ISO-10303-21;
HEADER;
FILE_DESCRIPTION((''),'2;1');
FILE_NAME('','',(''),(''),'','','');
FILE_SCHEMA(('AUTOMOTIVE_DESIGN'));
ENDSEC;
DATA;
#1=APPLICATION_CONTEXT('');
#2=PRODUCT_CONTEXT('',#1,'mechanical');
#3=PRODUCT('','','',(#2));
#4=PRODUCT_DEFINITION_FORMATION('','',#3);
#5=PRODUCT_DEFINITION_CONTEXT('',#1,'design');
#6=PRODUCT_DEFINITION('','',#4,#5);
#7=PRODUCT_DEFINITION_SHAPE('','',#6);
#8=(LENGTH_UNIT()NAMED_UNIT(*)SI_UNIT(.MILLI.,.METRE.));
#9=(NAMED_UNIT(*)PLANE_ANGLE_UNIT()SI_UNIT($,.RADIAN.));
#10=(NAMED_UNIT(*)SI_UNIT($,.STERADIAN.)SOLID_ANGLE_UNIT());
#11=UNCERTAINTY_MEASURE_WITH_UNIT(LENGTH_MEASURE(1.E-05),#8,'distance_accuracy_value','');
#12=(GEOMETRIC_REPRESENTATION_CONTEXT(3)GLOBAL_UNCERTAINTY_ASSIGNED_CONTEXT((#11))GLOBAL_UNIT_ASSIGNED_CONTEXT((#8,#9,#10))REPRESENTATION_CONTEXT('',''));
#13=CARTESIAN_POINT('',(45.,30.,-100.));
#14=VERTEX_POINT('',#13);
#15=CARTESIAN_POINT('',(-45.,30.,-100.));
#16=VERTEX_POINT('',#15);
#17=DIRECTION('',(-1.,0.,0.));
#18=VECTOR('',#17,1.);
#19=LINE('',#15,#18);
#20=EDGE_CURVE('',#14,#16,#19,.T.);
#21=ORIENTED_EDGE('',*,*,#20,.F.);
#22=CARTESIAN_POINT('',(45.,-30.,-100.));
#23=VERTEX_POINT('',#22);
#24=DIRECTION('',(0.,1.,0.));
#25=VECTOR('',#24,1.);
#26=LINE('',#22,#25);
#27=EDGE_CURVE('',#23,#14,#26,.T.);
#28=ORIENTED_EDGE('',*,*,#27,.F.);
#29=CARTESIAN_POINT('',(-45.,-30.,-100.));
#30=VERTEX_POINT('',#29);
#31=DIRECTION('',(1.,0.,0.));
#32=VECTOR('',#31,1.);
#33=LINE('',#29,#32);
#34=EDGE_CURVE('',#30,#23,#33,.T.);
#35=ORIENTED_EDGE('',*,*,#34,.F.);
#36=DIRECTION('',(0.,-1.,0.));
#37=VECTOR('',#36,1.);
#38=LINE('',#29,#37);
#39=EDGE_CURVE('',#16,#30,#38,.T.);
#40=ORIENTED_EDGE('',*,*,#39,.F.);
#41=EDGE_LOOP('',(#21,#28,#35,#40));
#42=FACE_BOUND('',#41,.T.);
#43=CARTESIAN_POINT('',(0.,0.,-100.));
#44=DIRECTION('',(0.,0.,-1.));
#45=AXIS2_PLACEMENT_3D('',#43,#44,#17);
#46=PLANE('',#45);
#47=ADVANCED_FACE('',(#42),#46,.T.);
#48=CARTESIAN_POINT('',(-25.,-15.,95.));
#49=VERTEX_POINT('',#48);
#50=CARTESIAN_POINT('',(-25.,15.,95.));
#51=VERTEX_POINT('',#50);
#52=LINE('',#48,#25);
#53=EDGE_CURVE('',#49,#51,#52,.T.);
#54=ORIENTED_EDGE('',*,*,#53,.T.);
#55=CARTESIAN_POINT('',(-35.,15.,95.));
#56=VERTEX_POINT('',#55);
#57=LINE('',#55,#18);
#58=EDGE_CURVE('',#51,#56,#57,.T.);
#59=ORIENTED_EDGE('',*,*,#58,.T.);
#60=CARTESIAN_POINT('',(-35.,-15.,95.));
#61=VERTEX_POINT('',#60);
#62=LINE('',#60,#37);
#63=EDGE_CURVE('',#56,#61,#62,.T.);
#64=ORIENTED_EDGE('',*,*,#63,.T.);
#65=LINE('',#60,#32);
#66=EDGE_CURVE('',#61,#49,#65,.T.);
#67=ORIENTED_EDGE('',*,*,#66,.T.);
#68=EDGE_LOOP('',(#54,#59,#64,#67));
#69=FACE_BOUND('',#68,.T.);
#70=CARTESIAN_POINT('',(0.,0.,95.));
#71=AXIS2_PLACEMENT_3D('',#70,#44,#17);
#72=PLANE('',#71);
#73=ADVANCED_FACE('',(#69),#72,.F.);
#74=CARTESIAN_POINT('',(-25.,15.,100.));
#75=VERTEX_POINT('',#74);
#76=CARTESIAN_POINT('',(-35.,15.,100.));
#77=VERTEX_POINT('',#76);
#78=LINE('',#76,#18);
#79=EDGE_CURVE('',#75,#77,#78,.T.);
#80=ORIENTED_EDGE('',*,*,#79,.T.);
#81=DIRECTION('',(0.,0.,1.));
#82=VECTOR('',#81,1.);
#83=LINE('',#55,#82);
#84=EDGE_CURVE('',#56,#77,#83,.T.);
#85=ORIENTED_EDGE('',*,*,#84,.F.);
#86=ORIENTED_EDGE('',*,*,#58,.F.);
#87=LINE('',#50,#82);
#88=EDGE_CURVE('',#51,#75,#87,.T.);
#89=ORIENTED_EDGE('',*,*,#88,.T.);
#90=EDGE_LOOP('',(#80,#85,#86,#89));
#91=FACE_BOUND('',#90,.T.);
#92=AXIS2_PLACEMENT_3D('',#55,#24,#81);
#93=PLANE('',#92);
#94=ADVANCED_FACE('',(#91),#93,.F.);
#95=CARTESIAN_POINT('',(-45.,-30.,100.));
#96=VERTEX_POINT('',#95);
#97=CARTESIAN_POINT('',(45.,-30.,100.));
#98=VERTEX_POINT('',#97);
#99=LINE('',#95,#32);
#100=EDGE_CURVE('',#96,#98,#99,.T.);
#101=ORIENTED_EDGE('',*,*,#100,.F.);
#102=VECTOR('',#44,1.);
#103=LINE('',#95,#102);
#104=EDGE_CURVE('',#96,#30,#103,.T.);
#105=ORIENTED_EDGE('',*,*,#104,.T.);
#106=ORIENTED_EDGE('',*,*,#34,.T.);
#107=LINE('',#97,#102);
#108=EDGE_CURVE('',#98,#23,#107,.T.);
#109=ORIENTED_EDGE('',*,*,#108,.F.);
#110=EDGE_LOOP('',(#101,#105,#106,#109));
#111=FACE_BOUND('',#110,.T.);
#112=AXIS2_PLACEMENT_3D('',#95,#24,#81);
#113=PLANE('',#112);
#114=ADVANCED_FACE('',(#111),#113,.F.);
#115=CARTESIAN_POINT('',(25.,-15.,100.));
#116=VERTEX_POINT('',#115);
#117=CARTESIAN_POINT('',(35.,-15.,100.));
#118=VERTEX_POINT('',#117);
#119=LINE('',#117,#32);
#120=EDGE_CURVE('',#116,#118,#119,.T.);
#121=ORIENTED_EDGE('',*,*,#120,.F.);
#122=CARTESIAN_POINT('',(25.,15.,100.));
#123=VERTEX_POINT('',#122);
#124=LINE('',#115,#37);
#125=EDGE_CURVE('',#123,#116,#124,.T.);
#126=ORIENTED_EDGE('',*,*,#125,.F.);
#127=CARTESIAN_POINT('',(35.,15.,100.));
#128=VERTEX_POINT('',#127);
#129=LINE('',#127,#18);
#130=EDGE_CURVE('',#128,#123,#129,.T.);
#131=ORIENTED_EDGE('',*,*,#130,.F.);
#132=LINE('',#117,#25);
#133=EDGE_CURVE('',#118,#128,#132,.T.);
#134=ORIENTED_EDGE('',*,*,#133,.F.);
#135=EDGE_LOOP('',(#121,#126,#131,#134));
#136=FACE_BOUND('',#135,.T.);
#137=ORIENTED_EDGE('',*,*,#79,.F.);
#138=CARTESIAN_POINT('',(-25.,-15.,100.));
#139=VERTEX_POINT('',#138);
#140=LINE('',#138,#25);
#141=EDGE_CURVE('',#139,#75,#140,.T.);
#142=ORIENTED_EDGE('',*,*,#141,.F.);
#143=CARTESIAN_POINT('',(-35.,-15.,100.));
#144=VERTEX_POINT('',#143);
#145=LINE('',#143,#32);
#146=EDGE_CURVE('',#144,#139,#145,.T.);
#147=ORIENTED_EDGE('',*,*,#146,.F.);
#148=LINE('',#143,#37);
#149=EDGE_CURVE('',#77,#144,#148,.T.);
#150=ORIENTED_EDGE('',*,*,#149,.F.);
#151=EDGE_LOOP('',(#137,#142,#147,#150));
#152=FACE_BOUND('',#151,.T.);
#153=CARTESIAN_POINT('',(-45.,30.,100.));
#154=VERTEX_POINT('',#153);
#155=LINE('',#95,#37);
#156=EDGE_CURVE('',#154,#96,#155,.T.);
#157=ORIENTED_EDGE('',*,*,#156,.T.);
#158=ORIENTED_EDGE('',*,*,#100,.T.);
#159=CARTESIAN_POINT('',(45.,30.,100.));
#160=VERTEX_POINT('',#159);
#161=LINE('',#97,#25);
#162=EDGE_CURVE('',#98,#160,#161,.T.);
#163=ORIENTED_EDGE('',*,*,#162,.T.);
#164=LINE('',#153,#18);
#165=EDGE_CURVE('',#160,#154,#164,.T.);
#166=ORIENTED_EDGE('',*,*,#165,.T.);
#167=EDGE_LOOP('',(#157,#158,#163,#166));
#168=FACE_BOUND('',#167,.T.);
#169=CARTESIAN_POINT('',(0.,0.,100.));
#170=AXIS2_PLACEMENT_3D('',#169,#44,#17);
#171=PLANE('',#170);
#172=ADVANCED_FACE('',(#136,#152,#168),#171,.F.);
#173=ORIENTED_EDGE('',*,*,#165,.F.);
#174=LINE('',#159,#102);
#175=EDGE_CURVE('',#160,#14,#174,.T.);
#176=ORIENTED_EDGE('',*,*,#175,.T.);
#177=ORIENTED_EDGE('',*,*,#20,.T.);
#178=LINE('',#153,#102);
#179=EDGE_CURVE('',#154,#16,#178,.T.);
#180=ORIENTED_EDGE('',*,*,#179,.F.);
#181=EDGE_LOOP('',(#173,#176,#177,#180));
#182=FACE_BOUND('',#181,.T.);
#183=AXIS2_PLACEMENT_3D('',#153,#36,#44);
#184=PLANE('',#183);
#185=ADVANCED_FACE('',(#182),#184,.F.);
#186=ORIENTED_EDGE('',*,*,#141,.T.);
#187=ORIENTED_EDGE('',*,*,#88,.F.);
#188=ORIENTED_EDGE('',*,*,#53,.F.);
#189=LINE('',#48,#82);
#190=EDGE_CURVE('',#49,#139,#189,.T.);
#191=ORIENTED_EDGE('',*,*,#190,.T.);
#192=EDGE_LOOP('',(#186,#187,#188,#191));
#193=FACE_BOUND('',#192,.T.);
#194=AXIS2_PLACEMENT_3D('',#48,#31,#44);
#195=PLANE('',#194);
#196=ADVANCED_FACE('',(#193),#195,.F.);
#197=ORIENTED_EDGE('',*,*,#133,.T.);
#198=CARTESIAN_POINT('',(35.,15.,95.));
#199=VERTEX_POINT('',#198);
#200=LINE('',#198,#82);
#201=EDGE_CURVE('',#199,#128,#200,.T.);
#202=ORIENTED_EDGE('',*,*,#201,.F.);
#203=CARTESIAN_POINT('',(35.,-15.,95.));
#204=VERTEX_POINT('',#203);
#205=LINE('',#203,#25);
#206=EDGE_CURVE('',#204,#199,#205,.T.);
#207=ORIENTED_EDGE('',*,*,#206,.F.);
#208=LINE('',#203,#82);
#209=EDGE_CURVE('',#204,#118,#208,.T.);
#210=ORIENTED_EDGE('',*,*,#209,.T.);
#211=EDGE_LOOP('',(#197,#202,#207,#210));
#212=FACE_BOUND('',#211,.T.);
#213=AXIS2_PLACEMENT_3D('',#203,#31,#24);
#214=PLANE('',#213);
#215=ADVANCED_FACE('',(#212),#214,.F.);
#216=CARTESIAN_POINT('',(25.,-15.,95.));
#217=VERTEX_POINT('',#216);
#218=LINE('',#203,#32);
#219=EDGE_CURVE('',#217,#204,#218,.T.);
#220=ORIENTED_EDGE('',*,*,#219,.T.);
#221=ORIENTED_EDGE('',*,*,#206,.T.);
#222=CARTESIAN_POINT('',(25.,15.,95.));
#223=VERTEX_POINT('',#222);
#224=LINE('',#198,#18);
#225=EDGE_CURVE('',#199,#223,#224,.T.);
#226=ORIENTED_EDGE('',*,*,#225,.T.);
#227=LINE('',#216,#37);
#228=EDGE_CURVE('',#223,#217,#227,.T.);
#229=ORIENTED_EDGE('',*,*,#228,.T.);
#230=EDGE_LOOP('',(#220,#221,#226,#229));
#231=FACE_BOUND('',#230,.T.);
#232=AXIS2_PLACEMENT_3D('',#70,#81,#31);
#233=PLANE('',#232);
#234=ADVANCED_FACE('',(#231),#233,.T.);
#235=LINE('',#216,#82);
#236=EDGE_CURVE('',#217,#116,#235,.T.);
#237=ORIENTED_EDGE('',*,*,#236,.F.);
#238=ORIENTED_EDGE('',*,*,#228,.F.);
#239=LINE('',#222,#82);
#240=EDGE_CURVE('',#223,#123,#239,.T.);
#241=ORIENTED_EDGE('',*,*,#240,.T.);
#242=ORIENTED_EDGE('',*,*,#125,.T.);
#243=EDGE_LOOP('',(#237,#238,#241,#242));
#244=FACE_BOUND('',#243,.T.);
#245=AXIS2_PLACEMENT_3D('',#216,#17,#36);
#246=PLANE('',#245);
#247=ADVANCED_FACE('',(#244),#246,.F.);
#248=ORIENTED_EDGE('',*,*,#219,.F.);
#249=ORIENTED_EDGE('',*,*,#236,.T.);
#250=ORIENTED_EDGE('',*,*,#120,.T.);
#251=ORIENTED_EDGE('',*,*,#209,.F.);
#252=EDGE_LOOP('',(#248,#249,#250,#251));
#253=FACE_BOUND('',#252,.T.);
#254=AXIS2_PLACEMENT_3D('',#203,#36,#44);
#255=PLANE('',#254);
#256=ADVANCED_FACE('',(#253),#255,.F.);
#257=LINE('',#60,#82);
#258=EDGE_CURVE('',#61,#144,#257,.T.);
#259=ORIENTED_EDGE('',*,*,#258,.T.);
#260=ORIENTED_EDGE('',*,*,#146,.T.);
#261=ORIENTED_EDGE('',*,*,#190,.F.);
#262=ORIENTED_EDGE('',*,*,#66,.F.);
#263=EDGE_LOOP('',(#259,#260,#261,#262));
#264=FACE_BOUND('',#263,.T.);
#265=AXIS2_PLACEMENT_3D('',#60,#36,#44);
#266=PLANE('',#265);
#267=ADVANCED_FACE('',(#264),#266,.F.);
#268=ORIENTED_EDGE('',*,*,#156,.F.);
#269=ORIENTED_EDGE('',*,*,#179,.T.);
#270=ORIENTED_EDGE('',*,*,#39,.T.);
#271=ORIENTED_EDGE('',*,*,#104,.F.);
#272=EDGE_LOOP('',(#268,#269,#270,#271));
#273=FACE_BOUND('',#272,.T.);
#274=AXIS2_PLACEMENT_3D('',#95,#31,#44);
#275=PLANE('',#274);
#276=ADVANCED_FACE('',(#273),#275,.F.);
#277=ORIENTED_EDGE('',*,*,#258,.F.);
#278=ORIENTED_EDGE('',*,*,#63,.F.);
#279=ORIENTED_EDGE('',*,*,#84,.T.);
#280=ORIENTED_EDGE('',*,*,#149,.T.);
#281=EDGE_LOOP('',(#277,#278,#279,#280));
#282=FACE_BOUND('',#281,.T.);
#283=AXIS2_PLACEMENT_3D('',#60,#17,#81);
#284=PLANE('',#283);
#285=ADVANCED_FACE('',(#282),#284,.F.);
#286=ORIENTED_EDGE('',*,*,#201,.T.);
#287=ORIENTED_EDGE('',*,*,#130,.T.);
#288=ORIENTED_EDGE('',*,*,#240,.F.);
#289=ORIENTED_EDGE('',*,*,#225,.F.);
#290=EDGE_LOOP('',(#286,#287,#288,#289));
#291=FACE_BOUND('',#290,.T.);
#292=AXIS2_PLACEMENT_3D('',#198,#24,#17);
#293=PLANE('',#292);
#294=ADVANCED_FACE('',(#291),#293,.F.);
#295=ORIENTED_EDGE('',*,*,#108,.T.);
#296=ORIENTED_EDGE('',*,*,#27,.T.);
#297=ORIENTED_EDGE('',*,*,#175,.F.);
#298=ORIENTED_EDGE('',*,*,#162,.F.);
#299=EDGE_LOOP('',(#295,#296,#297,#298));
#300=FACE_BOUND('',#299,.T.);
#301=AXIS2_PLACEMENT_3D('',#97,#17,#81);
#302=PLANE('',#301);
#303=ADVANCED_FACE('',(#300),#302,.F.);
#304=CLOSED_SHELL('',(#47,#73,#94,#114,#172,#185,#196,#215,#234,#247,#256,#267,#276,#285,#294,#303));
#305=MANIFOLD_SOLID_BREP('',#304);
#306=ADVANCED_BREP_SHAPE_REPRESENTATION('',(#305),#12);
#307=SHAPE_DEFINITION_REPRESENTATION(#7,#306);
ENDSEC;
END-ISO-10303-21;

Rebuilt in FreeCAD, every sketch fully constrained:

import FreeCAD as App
import Part
import Sketcher
Q = App.Units.Quantity


def add_polygon(sketch, points):
    """Adds a closed chain of lines whose ends are joined by coincident constraints."""
    first, n = sketch.GeometryCount, len(points)
    for a, b in zip(points, points[1:] + points[:1]):
        sketch.addGeometry(Part.LineSegment(App.Vector(*a, 0), App.Vector(*b, 0)), False)
    for i in range(n):
        sketch.addConstraint(Sketcher.Constraint("Coincident", first + i, 2, first + (i + 1) % n, 1))

doc = App.newDocument("Part")
params = doc.addObject("Spreadsheet::Sheet", "Params")
for row, (alias, value) in enumerate([
    ("sketch1_width", "90 mm"),
    ("sketch1_height", "60 mm"),
    ("pad1_length", "200 mm"),
    ("sketch2_width", "10 mm"),
    ("sketch2_height", "30 mm"),
    ("pocket1_length", "5 mm"),
], start=1):
    params.set(f"A{row}", alias)
    params.set(f"B{row}", "=" + value)
    params.setAlias(f"B{row}", alias)

body = doc.addObject("PartDesign::Body", "Body")

# Sketch on XY plane
sketch1 = doc.addObject("Sketcher::SketchObject", "Sketch")
body.addObject(sketch1)
sketch1.AttachmentSupport = (doc.XY_Plane, [""])
sketch1.MapMode = "FlatFace"
add_polygon(sketch1, [(-45, 30), (-45, -30), (45, -30), (45, 30)])  # lines 0-3
sketch1.addConstraint([
    Sketcher.Constraint("Vertical", 0),
    Sketcher.Constraint("Horizontal", 1),
    Sketcher.Constraint("Vertical", 2),
    Sketcher.Constraint("Horizontal", 3),
    Sketcher.Constraint("Symmetric", 0, 2, 2, 2, -1, 1),
    Sketcher.Constraint("DistanceX", 1, 1, 1, 2, Q("90 mm")),
    Sketcher.Constraint("DistanceY", 0, 2, 0, 1, Q("60 mm")),
])
sketch1.setExpression("Constraints[9]", "Params.sketch1_width")
sketch1.setExpression("Constraints[10]", "Params.sketch1_height")
pad1 = doc.addObject("PartDesign::Pad", "Pad")
body.addObject(pad1)
pad1.Profile = sketch1
pad1.setExpression("Length", "Params.pad1_length")
pad1.Midplane = True

# Sketch on XY plane
sketch2 = doc.addObject("Sketcher::SketchObject", "Sketch001")
body.addObject(sketch2)
sketch2.AttachmentSupport = (doc.XY_Plane, [""])
sketch2.MapMode = "FlatFace"
sketch2.AttachmentOffset = App.Placement(App.Vector(0, 0, 100), App.Rotation())
add_polygon(sketch2, [(-35, 15), (-35, -15), (-25, -15), (-25, 15)])  # lines 0-3
add_polygon(sketch2, [(25, 15), (25, -15), (35, -15), (35, 15)])  # lines 4-7
sketch2.addConstraint([
    Sketcher.Constraint("Vertical", 0),
    Sketcher.Constraint("Horizontal", 1),
    Sketcher.Constraint("Vertical", 2),
    Sketcher.Constraint("Horizontal", 3),
    Sketcher.Constraint("Vertical", 4),
    Sketcher.Constraint("Horizontal", 5),
    Sketcher.Constraint("Vertical", 6),
    Sketcher.Constraint("Horizontal", 7),
    Sketcher.Constraint("Symmetric", 2, 2, 4, 2, -1, 1),
    Sketcher.Constraint("Symmetric", 0, 2, 6, 2, -1, 1),
    Sketcher.Constraint("Horizontal", 1, 2, 4, 2),
    Sketcher.Constraint("DistanceX", 1, 1, 1, 2, Q("10 mm")),
    Sketcher.Constraint("DistanceY", 0, 2, 0, 1, Q("30 mm")),
    Sketcher.Constraint("DistanceX", 0, 2, -1, 1, Q("35 mm")),
])
sketch2.setExpression("Constraints[19]", "Params.sketch2_width")
sketch2.setExpression("Constraints[20]", "Params.sketch2_height")
pocket1 = doc.addObject("PartDesign::Pocket", "Pocket")
body.addObject(pocket1)
pocket1.Profile = sketch2
pocket1.setExpression("Length", "Params.pocket1_length")

doc.recompute()
